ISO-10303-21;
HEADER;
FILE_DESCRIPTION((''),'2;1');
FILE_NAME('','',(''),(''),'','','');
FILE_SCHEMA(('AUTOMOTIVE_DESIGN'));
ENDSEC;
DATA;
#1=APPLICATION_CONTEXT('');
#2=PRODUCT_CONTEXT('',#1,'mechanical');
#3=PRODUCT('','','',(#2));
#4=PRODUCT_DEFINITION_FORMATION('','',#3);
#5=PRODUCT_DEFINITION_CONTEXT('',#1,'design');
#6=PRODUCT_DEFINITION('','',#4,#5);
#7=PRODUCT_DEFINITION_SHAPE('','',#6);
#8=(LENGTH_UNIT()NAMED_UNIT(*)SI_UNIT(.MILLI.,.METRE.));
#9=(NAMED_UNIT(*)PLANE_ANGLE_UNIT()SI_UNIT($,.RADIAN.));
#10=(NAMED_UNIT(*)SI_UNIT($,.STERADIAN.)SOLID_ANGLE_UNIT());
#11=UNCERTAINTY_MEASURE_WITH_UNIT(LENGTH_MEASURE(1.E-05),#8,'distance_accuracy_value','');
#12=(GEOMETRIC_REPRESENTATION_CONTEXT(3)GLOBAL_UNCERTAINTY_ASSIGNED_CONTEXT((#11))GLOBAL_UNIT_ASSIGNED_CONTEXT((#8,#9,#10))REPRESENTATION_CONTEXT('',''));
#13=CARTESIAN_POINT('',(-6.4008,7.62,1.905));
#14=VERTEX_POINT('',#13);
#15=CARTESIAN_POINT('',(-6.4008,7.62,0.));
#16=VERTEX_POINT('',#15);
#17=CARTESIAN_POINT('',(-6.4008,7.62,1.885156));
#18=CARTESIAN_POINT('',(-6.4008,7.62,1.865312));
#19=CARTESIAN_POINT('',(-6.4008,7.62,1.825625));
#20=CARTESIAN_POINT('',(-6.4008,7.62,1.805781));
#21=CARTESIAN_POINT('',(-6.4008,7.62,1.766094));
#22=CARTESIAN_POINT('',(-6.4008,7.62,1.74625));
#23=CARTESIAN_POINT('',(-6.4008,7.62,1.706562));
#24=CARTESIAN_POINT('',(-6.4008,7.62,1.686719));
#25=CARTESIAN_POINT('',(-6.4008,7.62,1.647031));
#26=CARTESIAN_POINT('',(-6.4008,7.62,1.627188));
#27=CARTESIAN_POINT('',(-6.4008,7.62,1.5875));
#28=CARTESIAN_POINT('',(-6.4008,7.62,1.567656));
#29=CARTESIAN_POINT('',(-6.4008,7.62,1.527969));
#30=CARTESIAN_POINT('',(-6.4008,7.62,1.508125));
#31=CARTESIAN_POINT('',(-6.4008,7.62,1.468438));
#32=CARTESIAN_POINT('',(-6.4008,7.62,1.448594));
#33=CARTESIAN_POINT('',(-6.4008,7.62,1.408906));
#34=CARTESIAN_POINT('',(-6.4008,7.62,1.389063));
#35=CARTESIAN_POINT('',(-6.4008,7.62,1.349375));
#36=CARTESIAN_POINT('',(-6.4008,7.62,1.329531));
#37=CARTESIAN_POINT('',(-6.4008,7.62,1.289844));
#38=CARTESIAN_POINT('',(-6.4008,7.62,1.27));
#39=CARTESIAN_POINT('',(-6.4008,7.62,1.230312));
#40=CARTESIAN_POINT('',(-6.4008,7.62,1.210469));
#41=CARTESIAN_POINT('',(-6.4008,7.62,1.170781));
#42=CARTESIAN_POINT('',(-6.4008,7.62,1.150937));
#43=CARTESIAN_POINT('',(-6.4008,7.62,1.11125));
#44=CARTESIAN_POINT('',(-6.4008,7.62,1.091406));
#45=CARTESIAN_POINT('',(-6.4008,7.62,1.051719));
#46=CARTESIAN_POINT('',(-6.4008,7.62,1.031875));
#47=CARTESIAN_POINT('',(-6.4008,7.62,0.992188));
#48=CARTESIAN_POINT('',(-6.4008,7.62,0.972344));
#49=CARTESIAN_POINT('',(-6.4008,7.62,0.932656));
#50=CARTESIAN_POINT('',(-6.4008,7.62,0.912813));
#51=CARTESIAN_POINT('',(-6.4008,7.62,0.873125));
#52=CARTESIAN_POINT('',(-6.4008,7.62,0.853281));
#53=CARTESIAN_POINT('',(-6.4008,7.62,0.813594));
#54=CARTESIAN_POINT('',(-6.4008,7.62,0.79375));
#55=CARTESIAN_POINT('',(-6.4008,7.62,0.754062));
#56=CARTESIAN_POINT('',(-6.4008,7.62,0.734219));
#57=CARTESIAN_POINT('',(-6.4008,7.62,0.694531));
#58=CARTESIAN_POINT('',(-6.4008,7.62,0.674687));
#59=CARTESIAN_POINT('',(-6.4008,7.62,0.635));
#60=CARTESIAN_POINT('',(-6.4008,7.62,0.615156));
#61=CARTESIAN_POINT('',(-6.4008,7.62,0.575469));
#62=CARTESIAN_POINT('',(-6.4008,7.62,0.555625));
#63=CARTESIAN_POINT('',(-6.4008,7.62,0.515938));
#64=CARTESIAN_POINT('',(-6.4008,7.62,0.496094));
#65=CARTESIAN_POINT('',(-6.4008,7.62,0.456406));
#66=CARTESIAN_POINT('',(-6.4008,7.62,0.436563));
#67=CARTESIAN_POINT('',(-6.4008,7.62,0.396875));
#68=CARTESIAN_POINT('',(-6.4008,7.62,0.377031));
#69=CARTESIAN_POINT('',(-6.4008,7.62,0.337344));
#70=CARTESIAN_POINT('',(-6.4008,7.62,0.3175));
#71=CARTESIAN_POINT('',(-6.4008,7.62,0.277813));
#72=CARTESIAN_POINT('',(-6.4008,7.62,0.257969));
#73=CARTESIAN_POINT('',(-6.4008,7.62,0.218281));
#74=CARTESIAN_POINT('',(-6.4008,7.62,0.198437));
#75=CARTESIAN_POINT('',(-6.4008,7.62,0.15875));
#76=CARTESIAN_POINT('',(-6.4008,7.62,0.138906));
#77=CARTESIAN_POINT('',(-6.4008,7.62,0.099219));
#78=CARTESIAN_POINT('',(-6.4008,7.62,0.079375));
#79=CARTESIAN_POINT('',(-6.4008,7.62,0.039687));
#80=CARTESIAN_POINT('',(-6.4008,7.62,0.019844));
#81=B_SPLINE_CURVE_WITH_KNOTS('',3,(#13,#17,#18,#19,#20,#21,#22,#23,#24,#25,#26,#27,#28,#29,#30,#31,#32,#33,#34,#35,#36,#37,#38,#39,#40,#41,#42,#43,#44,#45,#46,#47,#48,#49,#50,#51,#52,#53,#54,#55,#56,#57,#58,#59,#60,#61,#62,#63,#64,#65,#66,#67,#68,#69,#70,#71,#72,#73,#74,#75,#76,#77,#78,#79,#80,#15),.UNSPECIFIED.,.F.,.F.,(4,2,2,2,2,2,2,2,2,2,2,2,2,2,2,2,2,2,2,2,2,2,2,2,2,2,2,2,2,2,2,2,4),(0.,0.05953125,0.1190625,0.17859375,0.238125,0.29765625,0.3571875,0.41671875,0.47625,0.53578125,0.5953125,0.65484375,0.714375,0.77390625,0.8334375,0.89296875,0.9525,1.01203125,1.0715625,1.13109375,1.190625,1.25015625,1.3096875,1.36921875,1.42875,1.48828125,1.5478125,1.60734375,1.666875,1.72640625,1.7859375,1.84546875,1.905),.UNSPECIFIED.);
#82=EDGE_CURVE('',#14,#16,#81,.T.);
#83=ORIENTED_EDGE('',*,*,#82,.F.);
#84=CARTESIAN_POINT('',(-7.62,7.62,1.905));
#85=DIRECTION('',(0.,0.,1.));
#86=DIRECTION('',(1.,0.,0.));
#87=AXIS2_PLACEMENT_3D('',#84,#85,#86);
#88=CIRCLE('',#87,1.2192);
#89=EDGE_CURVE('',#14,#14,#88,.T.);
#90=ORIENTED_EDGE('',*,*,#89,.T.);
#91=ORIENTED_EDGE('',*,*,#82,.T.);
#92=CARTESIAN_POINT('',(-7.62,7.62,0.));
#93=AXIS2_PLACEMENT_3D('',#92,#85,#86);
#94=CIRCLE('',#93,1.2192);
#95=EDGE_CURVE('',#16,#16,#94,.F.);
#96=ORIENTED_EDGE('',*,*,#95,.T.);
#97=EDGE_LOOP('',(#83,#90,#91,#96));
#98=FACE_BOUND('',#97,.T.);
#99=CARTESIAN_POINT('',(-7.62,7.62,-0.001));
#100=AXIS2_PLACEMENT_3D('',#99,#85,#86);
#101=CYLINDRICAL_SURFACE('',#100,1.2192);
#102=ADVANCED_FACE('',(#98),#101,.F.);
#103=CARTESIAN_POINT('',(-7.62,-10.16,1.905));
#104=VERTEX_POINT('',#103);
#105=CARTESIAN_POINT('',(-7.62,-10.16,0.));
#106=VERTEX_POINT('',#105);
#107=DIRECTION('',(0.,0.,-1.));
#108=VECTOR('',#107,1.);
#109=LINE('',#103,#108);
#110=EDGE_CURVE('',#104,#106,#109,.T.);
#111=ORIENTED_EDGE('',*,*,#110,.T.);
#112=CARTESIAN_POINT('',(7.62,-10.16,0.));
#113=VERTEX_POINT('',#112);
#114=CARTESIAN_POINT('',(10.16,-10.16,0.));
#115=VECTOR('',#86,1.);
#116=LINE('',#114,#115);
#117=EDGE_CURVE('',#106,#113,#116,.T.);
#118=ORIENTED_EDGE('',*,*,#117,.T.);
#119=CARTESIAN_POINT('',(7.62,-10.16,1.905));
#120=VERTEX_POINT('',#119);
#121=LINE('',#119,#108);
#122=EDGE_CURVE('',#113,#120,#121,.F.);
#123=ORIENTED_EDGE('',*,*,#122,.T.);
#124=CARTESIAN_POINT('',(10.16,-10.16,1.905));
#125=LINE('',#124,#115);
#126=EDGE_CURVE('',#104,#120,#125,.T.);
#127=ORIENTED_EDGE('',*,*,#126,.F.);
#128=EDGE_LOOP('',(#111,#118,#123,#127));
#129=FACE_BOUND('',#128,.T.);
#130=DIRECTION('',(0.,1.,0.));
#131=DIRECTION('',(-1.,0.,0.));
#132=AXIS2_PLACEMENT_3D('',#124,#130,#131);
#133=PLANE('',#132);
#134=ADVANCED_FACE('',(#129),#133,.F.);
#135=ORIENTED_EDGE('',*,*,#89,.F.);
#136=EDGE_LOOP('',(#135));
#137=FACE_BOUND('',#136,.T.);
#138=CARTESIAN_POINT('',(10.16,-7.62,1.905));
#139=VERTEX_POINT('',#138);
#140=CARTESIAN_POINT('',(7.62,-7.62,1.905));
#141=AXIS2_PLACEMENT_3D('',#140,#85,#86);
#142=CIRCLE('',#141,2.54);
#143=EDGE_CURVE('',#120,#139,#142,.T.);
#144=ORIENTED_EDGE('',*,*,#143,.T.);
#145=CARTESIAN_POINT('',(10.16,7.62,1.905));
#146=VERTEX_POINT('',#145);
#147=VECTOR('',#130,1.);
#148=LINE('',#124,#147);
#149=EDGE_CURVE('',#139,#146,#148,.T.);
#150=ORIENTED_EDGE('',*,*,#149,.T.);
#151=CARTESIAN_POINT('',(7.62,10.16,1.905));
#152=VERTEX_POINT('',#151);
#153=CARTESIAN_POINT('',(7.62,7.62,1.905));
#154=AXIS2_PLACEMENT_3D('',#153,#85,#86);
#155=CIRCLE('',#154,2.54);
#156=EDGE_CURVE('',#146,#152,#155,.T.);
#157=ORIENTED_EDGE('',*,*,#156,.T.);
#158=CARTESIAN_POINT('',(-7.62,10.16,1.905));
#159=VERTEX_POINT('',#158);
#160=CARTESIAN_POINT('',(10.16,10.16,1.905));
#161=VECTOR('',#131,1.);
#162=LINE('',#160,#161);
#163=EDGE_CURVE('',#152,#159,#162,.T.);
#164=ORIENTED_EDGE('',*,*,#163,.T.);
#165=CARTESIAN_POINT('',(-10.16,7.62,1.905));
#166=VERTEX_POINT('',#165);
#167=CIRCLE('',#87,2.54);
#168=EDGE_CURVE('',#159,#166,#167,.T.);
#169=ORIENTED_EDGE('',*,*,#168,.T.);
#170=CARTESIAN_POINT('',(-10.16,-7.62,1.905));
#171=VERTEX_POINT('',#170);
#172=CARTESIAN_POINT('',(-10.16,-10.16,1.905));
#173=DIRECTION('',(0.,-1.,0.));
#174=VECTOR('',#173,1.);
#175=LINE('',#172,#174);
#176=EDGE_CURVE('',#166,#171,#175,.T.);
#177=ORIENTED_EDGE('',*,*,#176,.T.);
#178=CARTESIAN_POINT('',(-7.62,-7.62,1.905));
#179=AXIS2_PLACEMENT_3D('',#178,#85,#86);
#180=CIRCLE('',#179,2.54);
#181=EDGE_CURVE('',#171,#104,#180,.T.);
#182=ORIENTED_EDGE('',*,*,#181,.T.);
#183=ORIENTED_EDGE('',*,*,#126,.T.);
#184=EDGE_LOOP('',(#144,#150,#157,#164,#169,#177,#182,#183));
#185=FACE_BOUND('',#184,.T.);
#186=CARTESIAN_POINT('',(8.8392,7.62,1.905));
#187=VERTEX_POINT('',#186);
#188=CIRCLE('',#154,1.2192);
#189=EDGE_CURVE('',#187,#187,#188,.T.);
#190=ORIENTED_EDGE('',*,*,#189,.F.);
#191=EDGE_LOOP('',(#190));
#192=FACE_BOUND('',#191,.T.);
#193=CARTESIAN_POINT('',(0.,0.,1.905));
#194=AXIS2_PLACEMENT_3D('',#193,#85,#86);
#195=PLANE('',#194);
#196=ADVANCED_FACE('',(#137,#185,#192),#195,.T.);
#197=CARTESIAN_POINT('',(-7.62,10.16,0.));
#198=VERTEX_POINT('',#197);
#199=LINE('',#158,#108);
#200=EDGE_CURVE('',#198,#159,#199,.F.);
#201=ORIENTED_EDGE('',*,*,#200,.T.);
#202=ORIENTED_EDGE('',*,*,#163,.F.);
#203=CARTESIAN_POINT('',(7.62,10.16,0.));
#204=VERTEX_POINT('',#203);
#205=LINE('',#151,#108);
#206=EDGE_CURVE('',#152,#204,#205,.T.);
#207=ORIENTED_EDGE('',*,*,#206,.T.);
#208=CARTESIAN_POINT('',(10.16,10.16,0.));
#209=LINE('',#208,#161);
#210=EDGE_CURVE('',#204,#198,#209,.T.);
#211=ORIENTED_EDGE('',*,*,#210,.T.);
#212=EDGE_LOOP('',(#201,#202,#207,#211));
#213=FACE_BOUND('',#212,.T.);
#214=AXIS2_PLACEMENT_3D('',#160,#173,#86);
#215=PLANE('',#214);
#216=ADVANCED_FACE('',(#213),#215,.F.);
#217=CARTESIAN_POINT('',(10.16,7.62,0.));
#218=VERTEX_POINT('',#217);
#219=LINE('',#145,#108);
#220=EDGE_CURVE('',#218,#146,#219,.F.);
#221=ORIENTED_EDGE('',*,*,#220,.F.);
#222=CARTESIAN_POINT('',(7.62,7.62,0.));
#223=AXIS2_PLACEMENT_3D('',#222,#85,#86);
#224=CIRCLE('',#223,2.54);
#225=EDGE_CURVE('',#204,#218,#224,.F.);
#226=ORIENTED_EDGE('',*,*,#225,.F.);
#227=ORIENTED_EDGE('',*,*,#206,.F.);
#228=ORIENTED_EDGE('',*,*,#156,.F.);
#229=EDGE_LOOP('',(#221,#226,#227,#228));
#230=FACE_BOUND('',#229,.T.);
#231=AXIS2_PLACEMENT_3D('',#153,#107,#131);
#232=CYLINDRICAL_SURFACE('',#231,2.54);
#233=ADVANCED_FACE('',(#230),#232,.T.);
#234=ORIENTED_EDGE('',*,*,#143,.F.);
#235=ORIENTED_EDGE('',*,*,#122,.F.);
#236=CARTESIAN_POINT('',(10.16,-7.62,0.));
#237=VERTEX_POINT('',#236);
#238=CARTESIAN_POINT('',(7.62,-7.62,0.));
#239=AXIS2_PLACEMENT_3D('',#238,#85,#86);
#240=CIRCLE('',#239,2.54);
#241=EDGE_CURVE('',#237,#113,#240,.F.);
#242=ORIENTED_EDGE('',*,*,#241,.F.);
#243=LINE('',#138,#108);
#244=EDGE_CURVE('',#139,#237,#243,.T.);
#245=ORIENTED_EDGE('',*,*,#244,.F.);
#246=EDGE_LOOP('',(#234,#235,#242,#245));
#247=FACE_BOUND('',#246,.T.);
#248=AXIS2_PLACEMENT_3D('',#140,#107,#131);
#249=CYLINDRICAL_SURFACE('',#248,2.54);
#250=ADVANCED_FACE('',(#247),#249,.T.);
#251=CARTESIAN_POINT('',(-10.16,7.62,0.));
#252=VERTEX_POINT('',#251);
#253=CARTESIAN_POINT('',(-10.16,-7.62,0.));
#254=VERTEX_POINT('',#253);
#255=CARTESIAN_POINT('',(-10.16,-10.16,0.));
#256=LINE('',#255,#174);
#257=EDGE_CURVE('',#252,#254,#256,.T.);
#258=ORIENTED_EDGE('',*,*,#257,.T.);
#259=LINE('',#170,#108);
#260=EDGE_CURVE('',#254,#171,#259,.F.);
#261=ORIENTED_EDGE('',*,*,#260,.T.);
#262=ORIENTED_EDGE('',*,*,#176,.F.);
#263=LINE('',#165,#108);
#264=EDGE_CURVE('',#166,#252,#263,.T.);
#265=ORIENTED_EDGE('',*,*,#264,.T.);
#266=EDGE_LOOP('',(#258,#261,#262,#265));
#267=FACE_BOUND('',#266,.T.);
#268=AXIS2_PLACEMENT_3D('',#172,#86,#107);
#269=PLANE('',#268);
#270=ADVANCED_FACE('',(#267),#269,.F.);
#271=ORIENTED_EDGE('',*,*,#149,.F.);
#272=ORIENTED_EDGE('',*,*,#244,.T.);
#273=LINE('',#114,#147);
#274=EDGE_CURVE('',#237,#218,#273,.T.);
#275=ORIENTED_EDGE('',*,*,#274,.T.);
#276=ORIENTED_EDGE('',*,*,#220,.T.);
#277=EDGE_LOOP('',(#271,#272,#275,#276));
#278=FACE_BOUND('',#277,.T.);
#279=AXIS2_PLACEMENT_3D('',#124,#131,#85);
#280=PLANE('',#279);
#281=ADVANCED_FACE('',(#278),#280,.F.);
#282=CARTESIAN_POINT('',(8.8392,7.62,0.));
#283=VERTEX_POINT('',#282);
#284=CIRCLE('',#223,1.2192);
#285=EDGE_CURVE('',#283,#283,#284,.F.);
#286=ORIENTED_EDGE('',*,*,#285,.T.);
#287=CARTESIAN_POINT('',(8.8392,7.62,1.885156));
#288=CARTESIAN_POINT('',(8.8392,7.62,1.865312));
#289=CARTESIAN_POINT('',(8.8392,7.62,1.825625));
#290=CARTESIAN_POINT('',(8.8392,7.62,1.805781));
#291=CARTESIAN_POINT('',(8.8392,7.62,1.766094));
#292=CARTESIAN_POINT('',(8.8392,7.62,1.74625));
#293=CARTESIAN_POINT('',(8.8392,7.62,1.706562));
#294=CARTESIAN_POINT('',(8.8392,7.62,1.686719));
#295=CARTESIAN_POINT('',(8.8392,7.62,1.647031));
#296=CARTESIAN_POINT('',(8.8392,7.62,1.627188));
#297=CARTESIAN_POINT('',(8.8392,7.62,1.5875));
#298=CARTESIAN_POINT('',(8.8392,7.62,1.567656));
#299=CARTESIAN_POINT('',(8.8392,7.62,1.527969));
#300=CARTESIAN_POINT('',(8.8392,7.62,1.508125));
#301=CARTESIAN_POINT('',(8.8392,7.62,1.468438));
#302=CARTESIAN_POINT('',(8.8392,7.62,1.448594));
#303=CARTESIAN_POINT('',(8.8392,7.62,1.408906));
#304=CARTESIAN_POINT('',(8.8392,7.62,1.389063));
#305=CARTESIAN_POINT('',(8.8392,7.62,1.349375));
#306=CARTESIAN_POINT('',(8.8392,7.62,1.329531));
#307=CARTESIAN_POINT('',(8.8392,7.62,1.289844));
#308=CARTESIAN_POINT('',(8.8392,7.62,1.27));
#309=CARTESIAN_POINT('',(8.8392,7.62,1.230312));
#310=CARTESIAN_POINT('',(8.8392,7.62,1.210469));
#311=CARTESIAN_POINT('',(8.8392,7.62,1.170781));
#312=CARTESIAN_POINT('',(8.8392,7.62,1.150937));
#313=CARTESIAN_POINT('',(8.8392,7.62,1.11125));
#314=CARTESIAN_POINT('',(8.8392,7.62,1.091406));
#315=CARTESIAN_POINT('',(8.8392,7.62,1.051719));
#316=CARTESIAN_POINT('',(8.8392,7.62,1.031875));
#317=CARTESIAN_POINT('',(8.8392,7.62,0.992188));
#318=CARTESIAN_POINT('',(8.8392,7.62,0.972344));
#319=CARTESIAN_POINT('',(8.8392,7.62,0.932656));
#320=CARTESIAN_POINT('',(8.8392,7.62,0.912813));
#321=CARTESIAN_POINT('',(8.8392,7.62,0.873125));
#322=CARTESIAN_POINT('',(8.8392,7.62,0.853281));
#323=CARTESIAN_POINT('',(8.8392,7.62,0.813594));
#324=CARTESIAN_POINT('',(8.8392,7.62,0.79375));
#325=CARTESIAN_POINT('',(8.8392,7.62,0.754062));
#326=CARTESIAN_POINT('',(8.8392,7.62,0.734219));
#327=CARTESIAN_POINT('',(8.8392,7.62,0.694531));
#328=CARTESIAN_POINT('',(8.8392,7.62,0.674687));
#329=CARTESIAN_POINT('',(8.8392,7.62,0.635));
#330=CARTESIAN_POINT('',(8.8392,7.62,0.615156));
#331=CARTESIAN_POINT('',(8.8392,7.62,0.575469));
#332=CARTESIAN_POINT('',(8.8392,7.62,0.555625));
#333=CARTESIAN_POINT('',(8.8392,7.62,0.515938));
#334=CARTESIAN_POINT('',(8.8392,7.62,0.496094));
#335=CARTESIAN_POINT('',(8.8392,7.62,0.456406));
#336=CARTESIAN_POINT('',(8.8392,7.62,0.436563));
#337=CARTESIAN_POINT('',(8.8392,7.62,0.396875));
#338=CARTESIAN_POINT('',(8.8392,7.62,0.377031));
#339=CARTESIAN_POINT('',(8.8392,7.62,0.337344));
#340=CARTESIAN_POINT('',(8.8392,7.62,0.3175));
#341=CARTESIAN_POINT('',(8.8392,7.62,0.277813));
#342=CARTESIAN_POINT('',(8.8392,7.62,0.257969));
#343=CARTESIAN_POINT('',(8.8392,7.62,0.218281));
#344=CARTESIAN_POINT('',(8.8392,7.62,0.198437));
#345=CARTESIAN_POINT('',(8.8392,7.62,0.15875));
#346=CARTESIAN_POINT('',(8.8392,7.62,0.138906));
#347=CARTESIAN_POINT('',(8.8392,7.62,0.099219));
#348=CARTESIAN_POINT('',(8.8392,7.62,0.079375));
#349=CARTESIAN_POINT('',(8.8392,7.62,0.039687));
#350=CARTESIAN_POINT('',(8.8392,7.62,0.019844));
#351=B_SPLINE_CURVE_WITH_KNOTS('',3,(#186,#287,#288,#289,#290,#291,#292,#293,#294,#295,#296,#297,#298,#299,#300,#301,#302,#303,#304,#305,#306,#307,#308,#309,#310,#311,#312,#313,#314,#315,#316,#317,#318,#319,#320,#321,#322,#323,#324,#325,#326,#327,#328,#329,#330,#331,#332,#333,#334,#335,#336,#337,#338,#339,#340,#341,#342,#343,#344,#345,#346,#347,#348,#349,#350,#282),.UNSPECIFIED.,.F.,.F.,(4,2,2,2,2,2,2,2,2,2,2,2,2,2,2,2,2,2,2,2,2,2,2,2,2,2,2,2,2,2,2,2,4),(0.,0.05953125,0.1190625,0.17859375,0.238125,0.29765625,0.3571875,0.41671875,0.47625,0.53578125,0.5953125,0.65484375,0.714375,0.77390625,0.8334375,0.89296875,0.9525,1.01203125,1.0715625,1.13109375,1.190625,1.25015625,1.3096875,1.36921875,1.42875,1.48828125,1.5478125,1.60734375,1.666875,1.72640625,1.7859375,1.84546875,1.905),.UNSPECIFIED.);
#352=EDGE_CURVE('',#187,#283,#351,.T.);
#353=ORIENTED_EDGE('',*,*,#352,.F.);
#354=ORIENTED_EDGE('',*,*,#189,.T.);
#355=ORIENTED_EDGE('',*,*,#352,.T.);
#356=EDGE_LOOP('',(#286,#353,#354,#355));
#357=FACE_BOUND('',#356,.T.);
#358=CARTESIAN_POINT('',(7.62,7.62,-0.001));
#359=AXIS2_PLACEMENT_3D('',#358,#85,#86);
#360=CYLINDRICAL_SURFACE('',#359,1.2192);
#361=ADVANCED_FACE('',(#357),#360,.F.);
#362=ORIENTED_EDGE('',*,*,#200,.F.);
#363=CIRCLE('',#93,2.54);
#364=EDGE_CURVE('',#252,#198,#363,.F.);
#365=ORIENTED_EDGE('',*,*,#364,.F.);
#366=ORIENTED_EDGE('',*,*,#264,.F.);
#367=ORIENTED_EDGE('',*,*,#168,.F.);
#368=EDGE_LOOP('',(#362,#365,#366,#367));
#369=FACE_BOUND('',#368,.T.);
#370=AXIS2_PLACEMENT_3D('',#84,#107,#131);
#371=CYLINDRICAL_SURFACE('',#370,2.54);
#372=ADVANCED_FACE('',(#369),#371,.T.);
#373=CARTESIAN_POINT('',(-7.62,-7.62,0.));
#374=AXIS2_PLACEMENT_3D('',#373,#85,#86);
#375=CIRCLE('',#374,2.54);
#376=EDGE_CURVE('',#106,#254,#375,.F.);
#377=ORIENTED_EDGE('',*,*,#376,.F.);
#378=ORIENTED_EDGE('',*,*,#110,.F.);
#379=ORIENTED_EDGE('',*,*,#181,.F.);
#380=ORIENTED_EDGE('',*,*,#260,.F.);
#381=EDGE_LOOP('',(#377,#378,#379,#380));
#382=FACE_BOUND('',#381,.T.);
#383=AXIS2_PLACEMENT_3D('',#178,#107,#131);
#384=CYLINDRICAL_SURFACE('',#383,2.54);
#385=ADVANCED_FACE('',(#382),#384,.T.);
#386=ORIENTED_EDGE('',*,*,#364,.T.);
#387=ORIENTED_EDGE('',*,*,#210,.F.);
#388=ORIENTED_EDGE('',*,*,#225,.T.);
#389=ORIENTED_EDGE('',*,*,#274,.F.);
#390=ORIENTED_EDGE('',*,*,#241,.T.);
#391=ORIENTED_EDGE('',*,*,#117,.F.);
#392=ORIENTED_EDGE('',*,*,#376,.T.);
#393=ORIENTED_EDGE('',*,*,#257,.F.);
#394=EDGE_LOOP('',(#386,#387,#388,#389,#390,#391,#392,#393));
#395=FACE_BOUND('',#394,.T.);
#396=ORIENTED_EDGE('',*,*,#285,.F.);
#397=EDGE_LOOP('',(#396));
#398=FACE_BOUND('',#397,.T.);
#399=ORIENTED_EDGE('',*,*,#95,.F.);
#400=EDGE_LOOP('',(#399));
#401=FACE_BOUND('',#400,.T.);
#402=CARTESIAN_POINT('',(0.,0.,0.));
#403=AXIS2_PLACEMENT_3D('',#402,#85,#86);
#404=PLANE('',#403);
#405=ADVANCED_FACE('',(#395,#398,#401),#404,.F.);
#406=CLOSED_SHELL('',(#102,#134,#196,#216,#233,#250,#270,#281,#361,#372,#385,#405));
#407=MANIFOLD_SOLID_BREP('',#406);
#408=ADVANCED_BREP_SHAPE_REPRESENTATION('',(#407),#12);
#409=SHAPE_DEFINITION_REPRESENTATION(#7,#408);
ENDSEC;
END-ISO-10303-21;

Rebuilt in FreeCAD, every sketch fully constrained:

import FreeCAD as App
import Part
import Sketcher
Q = App.Units.Quantity


def edges_at(feature, points):
    """Names of the edges that pass closest to the given points."""
    edges = feature.Shape.Edges
    near = lambda p: min(range(len(edges)), key=lambda i: edges[i].distToShape(Part.Vertex(*p))[0])
    return sorted({f"Edge{near(p) + 1}" for p in points})


def add_polygon(sketch, points):
    """Adds a closed chain of lines whose ends are joined by coincident constraints."""
    first, n = sketch.GeometryCount, len(points)
    for a, b in zip(points, points[1:] + points[:1]):
        sketch.addGeometry(Part.LineSegment(App.Vector(*a, 0), App.Vector(*b, 0)), False)
    for i in range(n):
        sketch.addConstraint(Sketcher.Constraint("Coincident", first + i, 2, first + (i + 1) % n, 1))

doc = App.newDocument("Part")
body = doc.addObject("PartDesign::Body", "Body")

# Sketch on XY plane
sketch1 = doc.addObject("Sketcher::SketchObject", "Sketch")
body.addObject(sketch1)
sketch1.AttachmentSupport = (doc.XY_Plane, [""])
sketch1.MapMode = "FlatFace"
add_polygon(sketch1, [(-10, 10), (-10, -10), (10, -10), (10, 10)])  # lines 0-3
sketch1.addConstraint(Sketcher.Constraint("Vertical", 0))
sketch1.addConstraint(Sketcher.Constraint("Horizontal", 1))
sketch1.addConstraint(Sketcher.Constraint("Vertical", 2))
sketch1.addConstraint(Sketcher.Constraint("Horizontal", 3))
sketch1.addConstraint(Sketcher.Constraint("Symmetric", 0, 2, 2, 2, -1, 1))
sketch1.addConstraint(Sketcher.Constraint("Equal", 3, 0))
sketch1.addConstraint(Sketcher.Constraint("DistanceX", 1, 1, 1, 2, Q("0.8 in")))
pad1 = doc.addObject("PartDesign::Pad", "Pad")
body.addObject(pad1)
pad1.Profile = sketch1
pad1.Length = Q("0.075 in")

# Sketch on XY plane
sketch2 = doc.addObject("Sketcher::SketchObject", "Sketch001")
body.addObject(sketch2)
sketch2.AttachmentSupport = (doc.XY_Plane, [""])
sketch2.MapMode = "FlatFace"
sketch2.AttachmentOffset = App.Placement(App.Vector(0, 0, 0.075 * 25.4), App.Rotation())
sketch2.addGeometry(Part.Circle(App.Vector(-7.6, 7.6, 0), App.Vector(0, 0, 1), 1.2), False)
sketch2.addConstraint(Sketcher.Constraint("Diameter", 0, Q("0.096 in")))
sketch2.addConstraint(Sketcher.Constraint("DistanceX", 0, 3, -1, 1, Q("0.3 in")))
sketch2.addConstraint(Sketcher.Constraint("DistanceY", -1, 1, 0, 3, Q("0.3 in")))
pocket1 = doc.addObject("PartDesign::Pocket", "Pocket")
body.addObject(pocket1)
pocket1.Profile = sketch2
pocket1.Type = "UpToFirst"

# Sketch on XY plane
sketch3 = doc.addObject("Sketcher::SketchObject", "Sketch002")
body.addObject(sketch3)
sketch3.AttachmentSupport = (doc.XY_Plane, [""])
sketch3.MapMode = "FlatFace"
sketch3.AttachmentOffset = App.Placement(App.Vector(0, 0, 0.075 * 25.4), App.Rotation())
sketch3.addGeometry(Part.Circle(App.Vector(7.6, 7.6, 0), App.Vector(0, 0, 1), 1.2), False)
sketch3.addConstraint(Sketcher.Constraint("Diameter", 0, Q("0.096 in")))
sketch3.addConstraint(Sketcher.Constraint("DistanceX", -1, 1, 0, 3, Q("0.3 in")))
sketch3.addConstraint(Sketcher.Constraint("DistanceY", -1, 1, 0, 3, Q("0.3 in")))
pocket2 = doc.addObject("PartDesign::Pocket", "Pocket001")
body.addObject(pocket2)
pocket2.Profile = sketch3
pocket2.Type = "UpToFirst"
doc.recompute()

fillet = doc.addObject("PartDesign::Fillet", "Fillet")
body.addObject(fillet)
fillet.Base = (pocket2, edges_at(pocket2, [
    (-10.16, 10.16, 0.953),
    (10.16, 10.16, 0.953),
    (10.16, -10.16, 0.953),
    (-10.16, -10.16, 0.953),
]))
fillet.Radius = Q("0.1 in")

doc.recompute()
